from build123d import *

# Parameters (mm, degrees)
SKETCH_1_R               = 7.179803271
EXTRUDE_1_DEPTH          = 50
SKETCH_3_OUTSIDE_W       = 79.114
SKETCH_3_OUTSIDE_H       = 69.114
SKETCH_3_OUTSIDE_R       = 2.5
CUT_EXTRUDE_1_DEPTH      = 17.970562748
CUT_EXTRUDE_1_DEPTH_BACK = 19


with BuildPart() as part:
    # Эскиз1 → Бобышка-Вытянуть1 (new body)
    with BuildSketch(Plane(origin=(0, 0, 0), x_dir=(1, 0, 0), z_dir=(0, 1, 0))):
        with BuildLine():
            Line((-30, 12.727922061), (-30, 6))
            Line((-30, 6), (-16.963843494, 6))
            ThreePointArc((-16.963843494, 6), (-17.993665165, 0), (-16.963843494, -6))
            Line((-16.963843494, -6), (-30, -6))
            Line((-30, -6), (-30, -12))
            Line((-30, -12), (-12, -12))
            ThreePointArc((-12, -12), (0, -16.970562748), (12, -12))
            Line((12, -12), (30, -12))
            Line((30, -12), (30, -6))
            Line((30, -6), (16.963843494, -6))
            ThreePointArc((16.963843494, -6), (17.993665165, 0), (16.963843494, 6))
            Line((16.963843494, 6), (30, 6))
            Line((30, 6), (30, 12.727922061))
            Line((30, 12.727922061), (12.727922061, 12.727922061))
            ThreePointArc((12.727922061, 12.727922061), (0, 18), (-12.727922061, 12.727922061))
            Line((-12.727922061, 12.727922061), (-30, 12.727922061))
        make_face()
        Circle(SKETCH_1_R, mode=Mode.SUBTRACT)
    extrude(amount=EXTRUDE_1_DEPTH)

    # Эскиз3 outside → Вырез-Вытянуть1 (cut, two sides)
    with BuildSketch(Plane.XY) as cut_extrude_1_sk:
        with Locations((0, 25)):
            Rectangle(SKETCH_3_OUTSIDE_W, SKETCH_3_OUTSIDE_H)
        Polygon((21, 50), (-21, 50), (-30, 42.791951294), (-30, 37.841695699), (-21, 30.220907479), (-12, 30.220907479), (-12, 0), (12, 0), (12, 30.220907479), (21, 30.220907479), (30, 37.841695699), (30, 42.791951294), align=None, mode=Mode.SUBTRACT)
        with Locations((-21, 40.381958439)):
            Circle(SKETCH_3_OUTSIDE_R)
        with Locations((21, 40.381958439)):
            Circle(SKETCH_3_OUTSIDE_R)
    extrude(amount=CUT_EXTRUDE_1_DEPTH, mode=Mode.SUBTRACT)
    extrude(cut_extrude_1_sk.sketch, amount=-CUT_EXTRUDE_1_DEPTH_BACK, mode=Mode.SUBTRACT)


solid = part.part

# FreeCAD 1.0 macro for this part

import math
import FreeCAD as App
import Part
import Sketcher

doc = App.newDocument("Part")
body = doc.addObject("PartDesign::Body", "Body")

# Sketch on XZ plane
sketch1 = body.newObject("Sketcher::SketchObject", "Sketch")
sketch1.AttachmentSupport = (doc.getObject("XZ_Plane"), [""])
sketch1.MapMode = "FlatFace"
sketch1.addGeometry(Part.LineSegment(App.Vector(-30, -13, 0), App.Vector(-30, -6, 0)), False)
sketch1.addGeometry(Part.LineSegment(App.Vector(-30, -6, 0), App.Vector(-17, -6, 0)), False)
sketch1.addGeometry(Part.ArcOfCircle(Part.Circle(App.Vector(0, 0, 0), App.Vector(0, 0, 1), 18), math.radians(161), math.radians(199)), False)
sketch1.addGeometry(Part.LineSegment(App.Vector(-17, 6, 0), App.Vector(-30, 6, 0)), False)
sketch1.addGeometry(Part.LineSegment(App.Vector(-30, 6, 0), App.Vector(-30, 12, 0)), False)
sketch1.addGeometry(Part.LineSegment(App.Vector(-30, 12, 0), App.Vector(-12, 12, 0)), False)
sketch1.addGeometry(Part.ArcOfCircle(Part.Circle(App.Vector(0, 0, 0), App.Vector(0, 0, 1), 17), math.radians(45), math.radians(135)), False)
sketch1.addGeometry(Part.LineSegment(App.Vector(12, 12, 0), App.Vector(30, 12, 0)), False)
sketch1.addGeometry(Part.LineSegment(App.Vector(30, 12, 0), App.Vector(30, 6, 0)), False)
sketch1.addGeometry(Part.LineSegment(App.Vector(30, 6, 0), App.Vector(17, 6, 0)), False)
sketch1.addGeometry(Part.ArcOfCircle(Part.Circle(App.Vector(0, 0, 0), App.Vector(0, 0, 1), 18), math.radians(-19), math.radians(19)), False)
sketch1.addGeometry(Part.LineSegment(App.Vector(17, -6, 0), App.Vector(30, -6, 0)), False)
sketch1.addGeometry(Part.LineSegment(App.Vector(30, -6, 0), App.Vector(30, -13, 0)), False)
sketch1.addGeometry(Part.LineSegment(App.Vector(30, -13, 0), App.Vector(13, -13, 0)), False)
sketch1.addGeometry(Part.ArcOfCircle(Part.Circle(App.Vector(0, 0, 0), App.Vector(0, 0, 1), 18), math.radians(-135), math.radians(-45)), False)
sketch1.addGeometry(Part.LineSegment(App.Vector(-13, -13, 0), App.Vector(-30, -13, 0)), False)
sketch1.addGeometry(Part.Circle(App.Vector(0, 0, 0), App.Vector(0, 0, 1), 7), False)
sketch1.addConstraint(Sketcher.Constraint("Coincident", 0, 2, 1, 1))
sketch1.addConstraint(Sketcher.Constraint("Coincident", 1, 2, 2, 2))
sketch1.addConstraint(Sketcher.Constraint("Coincident", 2, 1, 3, 1))
sketch1.addConstraint(Sketcher.Constraint("Coincident", 3, 2, 4, 1))
sketch1.addConstraint(Sketcher.Constraint("Coincident", 4, 2, 5, 1))
sketch1.addConstraint(Sketcher.Constraint("Coincident", 5, 2, 6, 2))
sketch1.addConstraint(Sketcher.Constraint("Coincident", 6, 1, 7, 1))
sketch1.addConstraint(Sketcher.Constraint("Coincident", 7, 2, 8, 1))
sketch1.addConstraint(Sketcher.Constraint("Coincident", 8, 2, 9, 1))
sketch1.addConstraint(Sketcher.Constraint("Coincident", 9, 2, 10, 2))
sketch1.addConstraint(Sketcher.Constraint("Coincident", 10, 1, 11, 1))
sketch1.addConstraint(Sketcher.Constraint("Coincident", 11, 2, 12, 1))
sketch1.addConstraint(Sketcher.Constraint("Coincident", 12, 2, 13, 1))
sketch1.addConstraint(Sketcher.Constraint("Coincident", 13, 2, 14, 2))
sketch1.addConstraint(Sketcher.Constraint("Coincident", 14, 1, 15, 1))
sketch1.addConstraint(Sketcher.Constraint("Coincident", 15, 2, 0, 1))
sketch1.addConstraint(Sketcher.Constraint("Vertical", 0))
sketch1.addConstraint(Sketcher.Constraint("Horizontal", 1))
sketch1.addConstraint(Sketcher.Constraint("Horizontal", 3))
sketch1.addConstraint(Sketcher.Constraint("Vertical", 4))
sketch1.addConstraint(Sketcher.Constraint("Horizontal", 5))
sketch1.addConstraint(Sketcher.Constraint("Horizontal", 7))
sketch1.addConstraint(Sketcher.Constraint("Vertical", 8))
sketch1.addConstraint(Sketcher.Constraint("Horizontal", 9))
sketch1.addConstraint(Sketcher.Constraint("Horizontal", 11))
sketch1.addConstraint(Sketcher.Constraint("Vertical", 12))
sketch1.addConstraint(Sketcher.Constraint("Horizontal", 13))
sketch1.addConstraint(Sketcher.Constraint("Horizontal", 15))
sketch1.addConstraint(Sketcher.Constraint("Coincident", 2, 3, -1, 1))
sketch1.addConstraint(Sketcher.Constraint("Coincident", 6, 3, -1, 1))
sketch1.addConstraint(Sketcher.Constraint("Coincident", 10, 3, -1, 1))
sketch1.addConstraint(Sketcher.Constraint("Coincident", 14, 3, -1, 1))
sketch1.addConstraint(Sketcher.Constraint("Coincident", 16, 3, -1, 1))
sketch1.addConstraint(Sketcher.Constraint("Equal", 2, 10))
sketch1.addConstraint(Sketcher.Constraint("Symmetric", 0, 2, 8, 2, -1, 1))
sketch1.addConstraint(Sketcher.Constraint("Symmetric", 3, 2, 11, 2, -1, 1))
sketch1.addConstraint(Sketcher.Constraint("Symmetric", 4, 2, 7, 2, -2))
sketch1.addConstraint(Sketcher.Constraint("Horizontal", 3, 2, 8, 2))
sketch1.addConstraint(Sketcher.Constraint("Horizontal", 13, 2, 14, 1))
sketch1.addConstraint(Sketcher.Constraint("Radius", 14, 18.0))
sketch1.addConstraint(Sketcher.Constraint("DistanceX", 5, 1, 5, 2, 18.0))
sketch1.addConstraint(Sketcher.Constraint("DistanceY", 4, 1, 4, 2, 6.0))
sketch1.addConstraint(Sketcher.Constraint("DistanceX", 0, 2, -1, 1, 30.0))
sketch1.addConstraint(Sketcher.Constraint("DistanceY", 0, 2, -1, 1, 6.0))
sketch1.addConstraint(Sketcher.Constraint("Diameter", 16, 14.359607))
sketch1.addConstraint(Sketcher.Constraint("Radius", 2, 17.993665))
sketch1.addConstraint(Sketcher.Constraint("DistanceX", 13, 2, 13, 1, 17.272078))
pad1 = body.newObject("PartDesign::Pad", "Pad")
pad1.Profile = sketch1
pad1.Length = 50
pad1.Reversed = True

# Sketch on XY plane
sketch2 = body.newObject("Sketcher::SketchObject", "Sketch001")
sketch2.AttachmentSupport = (doc.getObject("XY_Plane"), [""])
sketch2.MapMode = "FlatFace"
sketch2.addGeometry(Part.LineSegment(App.Vector(-39.6, 59.6, 0), App.Vector(-39.6, -9.6, 0)), False)
sketch2.addGeometry(Part.LineSegment(App.Vector(-39.6, -9.6, 0), App.Vector(39.6, -9.6, 0)), False)
sketch2.addGeometry(Part.LineSegment(App.Vector(39.6, -9.6, 0), App.Vector(39.6, 59.6, 0)), False)
sketch2.addGeometry(Part.LineSegment(App.Vector(39.6, 59.6, 0), App.Vector(-39.6, 59.6, 0)), False)
sketch2.addGeometry(Part.LineSegment(App.Vector(-21, 50, 0), App.Vector(21, 50, 0)), False)
sketch2.addGeometry(Part.LineSegment(App.Vector(21, 50, 0), App.Vector(30, 42.8, 0)), False)
sketch2.addGeometry(Part.LineSegment(App.Vector(30, 42.8, 0), App.Vector(30, 37.8, 0)), False)
sketch2.addGeometry(Part.LineSegment(App.Vector(30, 37.8, 0), App.Vector(21, 30.2, 0)), False)
sketch2.addGeometry(Part.LineSegment(App.Vector(21, 30.2, 0), App.Vector(12, 30.2, 0)), False)
sketch2.addGeometry(Part.LineSegment(App.Vector(12, 30.2, 0), App.Vector(12, 0, 0)), False)
sketch2.addGeometry(Part.LineSegment(App.Vector(12, 0, 0), App.Vector(-12, 0, 0)), False)
sketch2.addGeometry(Part.LineSegment(App.Vector(-12, 0, 0), App.Vector(-12, 30.2, 0)), False)
sketch2.addGeometry(Part.LineSegment(App.Vector(-12, 30.2, 0), App.Vector(-21, 30.2, 0)), False)
sketch2.addGeometry(Part.LineSegment(App.Vector(-21, 30.2, 0), App.Vector(-30, 37.8, 0)), False)
sketch2.addGeometry(Part.LineSegment(App.Vector(-30, 37.8, 0), App.Vector(-30, 42.8, 0)), False)
sketch2.addGeometry(Part.LineSegment(App.Vector(-30, 42.8, 0), App.Vector(-21, 50, 0)), False)
sketch2.addGeometry(Part.Circle(App.Vector(-21, 40.4, 0), App.Vector(0, 0, 1), 2.5), False)
sketch2.addGeometry(Part.Circle(App.Vector(21, 40.4, 0), App.Vector(0, 0, 1), 2.5), False)
sketch2.addConstraint(Sketcher.Constraint("Coincident", 0, 2, 1, 1))
sketch2.addConstraint(Sketcher.Constraint("Coincident", 1, 2, 2, 1))
sketch2.addConstraint(Sketcher.Constraint("Coincident", 2, 2, 3, 1))
sketch2.addConstraint(Sketcher.Constraint("Coincident", 3, 2, 0, 1))
sketch2.addConstraint(Sketcher.Constraint("Coincident", 4, 2, 5, 1))
sketch2.addConstraint(Sketcher.Constraint("Coincident", 5, 2, 6, 1))
sketch2.addConstraint(Sketcher.Constraint("Coincident", 6, 2, 7, 1))
sketch2.addConstraint(Sketcher.Constraint("Coincident", 7, 2, 8, 1))
sketch2.addConstraint(Sketcher.Constraint("Coincident", 8, 2, 9, 1))
sketch2.addConstraint(Sketcher.Constraint("Coincident", 9, 2, 10, 1))
sketch2.addConstraint(Sketcher.Constraint("Coincident", 10, 2, 11, 1))
sketch2.addConstraint(Sketcher.Constraint("Coincident", 11, 2, 12, 1))
sketch2.addConstraint(Sketcher.Constraint("Coincident", 12, 2, 13, 1))
sketch2.addConstraint(Sketcher.Constraint("Coincident", 13, 2, 14, 1))
sketch2.addConstraint(Sketcher.Constraint("Coincident", 14, 2, 15, 1))
sketch2.addConstraint(Sketcher.Constraint("Coincident", 15, 2, 4, 1))
sketch2.addConstraint(Sketcher.Constraint("Vertical", 0))
sketch2.addConstraint(Sketcher.Constraint("Horizontal", 1))
sketch2.addConstraint(Sketcher.Constraint("Vertical", 2))
sketch2.addConstraint(Sketcher.Constraint("Horizontal", 3))
sketch2.addConstraint(Sketcher.Constraint("Horizontal", 4))
sketch2.addConstraint(Sketcher.Constraint("Vertical", 6))
sketch2.addConstraint(Sketcher.Constraint("Horizontal", 8))
sketch2.addConstraint(Sketcher.Constraint("Vertical", 9))
sketch2.addConstraint(Sketcher.Constraint("Horizontal", 10))
sketch2.addConstraint(Sketcher.Constraint("Vertical", 11))
sketch2.addConstraint(Sketcher.Constraint("Horizontal", 12))
sketch2.addConstraint(Sketcher.Constraint("Vertical", 14))
sketch2.addConstraint(Sketcher.Constraint("Equal", 16, 17))
sketch2.addConstraint(Sketcher.Constraint("Symmetric", 9, 2, 10, 2, -1, 1))
sketch2.addConstraint(Sketcher.Constraint("Symmetric", 16, 3, 17, 3, -2))
sketch2.addConstraint(Sketcher.Constraint("Symmetric", 7, 2, 12, 2, -2))
sketch2.addConstraint(Sketcher.Constraint("Symmetric", 6, 2, 13, 2, -2))
sketch2.addConstraint(Sketcher.Constraint("Horizontal", 5, 2, 14, 2))
sketch2.addConstraint(Sketcher.Constraint("Vertical", 17, 3, 4, 2))
sketch2.addConstraint(Sketcher.Constraint("Vertical", 4, 2, 7, 2))
sketch2.addConstraint(Sketcher.Constraint("Vertical", 12, 2, 15, 2))
sketch2.addConstraint(Sketcher.Constraint("Diameter", 16, 5.0))
sketch2.addConstraint(Sketcher.Constraint("DistanceX", 4, 1, 4, 2, 42.0))
sketch2.addConstraint(Sketcher.Constraint("DistanceX", 8, 2, 8, 1, 9.0))
sketch2.addConstraint(Sketcher.Constraint("DistanceY", -1, 1, 4, 2, 50.0))
sketch2.addConstraint(Sketcher.Constraint("DistanceX", -1, 1, 5, 2, 30.0))
sketch2.addConstraint(Sketcher.Constraint("DistanceX", 1, 1, 1, 2, 79.114))
sketch2.addConstraint(Sketcher.Constraint("DistanceY", 0, 2, 0, 1, 69.114))
sketch2.addConstraint(Sketcher.Constraint("DistanceX", 0, 2, -1, 1, 39.557))
sketch2.addConstraint(Sketcher.Constraint("DistanceY", 0, 2, -1, 1, 9.557))
sketch2.addConstraint(Sketcher.Constraint("DistanceY", 6, 2, 6, 1, 4.950256))
sketch2.addConstraint(Sketcher.Constraint("DistanceY", 9, 2, 9, 1, 30.220907))
sketch2.addConstraint(Sketcher.Constraint("DistanceY", -1, 1, 16, 3, 40.381958))
sketch2.addConstraint(Sketcher.Constraint("DistanceY", -1, 1, 5, 2, 42.791951))
pocket1 = body.newObject("PartDesign::Pocket", "Pocket")
pocket1.Profile = sketch2
pocket1.Type = "ThroughAll"
pocket1.Midplane = True

doc.recompute()
